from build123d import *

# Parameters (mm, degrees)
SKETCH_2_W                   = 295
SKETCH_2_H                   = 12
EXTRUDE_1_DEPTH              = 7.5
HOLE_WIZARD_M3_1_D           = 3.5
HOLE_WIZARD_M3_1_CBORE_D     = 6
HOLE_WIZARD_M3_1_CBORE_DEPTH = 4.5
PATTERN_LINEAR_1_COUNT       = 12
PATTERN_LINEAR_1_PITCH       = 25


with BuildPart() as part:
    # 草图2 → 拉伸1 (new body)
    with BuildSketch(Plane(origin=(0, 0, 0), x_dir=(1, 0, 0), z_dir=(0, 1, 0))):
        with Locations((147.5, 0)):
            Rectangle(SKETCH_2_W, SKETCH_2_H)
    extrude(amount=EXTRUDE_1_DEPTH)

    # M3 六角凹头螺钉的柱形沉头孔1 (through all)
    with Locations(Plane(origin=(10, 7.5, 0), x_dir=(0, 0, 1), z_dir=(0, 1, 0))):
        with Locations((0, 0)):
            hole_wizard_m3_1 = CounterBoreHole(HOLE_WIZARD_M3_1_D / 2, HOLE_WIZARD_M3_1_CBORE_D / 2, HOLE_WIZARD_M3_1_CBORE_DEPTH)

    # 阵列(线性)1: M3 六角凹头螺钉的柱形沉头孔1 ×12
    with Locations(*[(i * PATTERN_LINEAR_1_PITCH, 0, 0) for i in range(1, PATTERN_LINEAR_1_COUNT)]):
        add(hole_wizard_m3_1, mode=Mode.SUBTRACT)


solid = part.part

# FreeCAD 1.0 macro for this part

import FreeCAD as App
import Part
import Sketcher

V = App.Vector

doc = App.newDocument("Part")
body = doc.addObject("PartDesign::Body", "Body")

# Sketch on XZ plane
sketch1 = doc.addObject("Sketcher::SketchObject", "Sketch")
body.addObject(sketch1)
sketch1.AttachmentSupport = (doc.XZ_Plane, [""])
sketch1.MapMode = "FlatFace"
sketch1.addGeometry(Part.LineSegment(V(0, -6, 0), V(0, 6, 0)), False)
sketch1.addGeometry(Part.LineSegment(V(0, 6, 0), V(295, 6, 0)), False)
sketch1.addGeometry(Part.LineSegment(V(295, 6, 0), V(295, -6, 0)), False)
sketch1.addGeometry(Part.LineSegment(V(295, -6, 0), V(0, -6, 0)), False)
sketch1.addConstraint(Sketcher.Constraint("Coincident", 0, 2, 1, 1))
sketch1.addConstraint(Sketcher.Constraint("Coincident", 1, 2, 2, 1))
sketch1.addConstraint(Sketcher.Constraint("Coincident", 2, 2, 3, 1))
sketch1.addConstraint(Sketcher.Constraint("Coincident", 3, 2, 0, 1))
sketch1.addConstraint(Sketcher.Constraint("Vertical", 0))
sketch1.addConstraint(Sketcher.Constraint("Horizontal", 1))
sketch1.addConstraint(Sketcher.Constraint("Vertical", 2))
sketch1.addConstraint(Sketcher.Constraint("Horizontal", 3))
sketch1.addConstraint(Sketcher.Constraint("Symmetric", 0, 2, 3, 2, -1, 1))
sketch1.addConstraint(Sketcher.Constraint("DistanceX", 1, 1, 1, 2, 295.0))
sketch1.addConstraint(Sketcher.Constraint("DistanceY", 0, 1, 0, 2, 12.0))
pad1 = doc.addObject("PartDesign::Pad", "Pad")
body.addObject(pad1)
pad1.Profile = sketch1
pad1.Length = 7.5
pad1.Reversed = True

# Sketch on XZ plane
sketch2 = doc.addObject("Sketcher::SketchObject", "Sketch001")
body.addObject(sketch2)
sketch2.AttachmentSupport = (doc.XZ_Plane, [""])
sketch2.MapMode = "FlatFace"
sketch2.AttachmentOffset = App.Placement(V(0, 0, -7.5), App.Rotation())
sketch2.addGeometry(Part.Circle(V(10, 0, 0), V(0, 0, 1), 1.8), False)
sketch2.addConstraint(Sketcher.Constraint("PointOnObject", 0, 3, -1))
sketch2.addConstraint(Sketcher.Constraint("Diameter", 0, 3.5))
sketch2.addConstraint(Sketcher.Constraint("DistanceX", -1, 1, 0, 3, 10.0))
doc.recompute()
hole = doc.addObject("PartDesign::Hole", "Hole")
body.addObject(hole)
hole.Profile = sketch2
hole.ThreadType = "None"
hole.Diameter = 3.5
hole.DepthType = "ThroughAll"
hole.HoleCutType = "Counterbore"
hole.HoleCutDiameter = 6
hole.HoleCutDepth = 4.5
hole.Reversed = True
doc.recompute()

linearpattern = doc.addObject("PartDesign::LinearPattern", "LinearPattern")
body.addObject(linearpattern)
linearpattern.Originals = [hole]
linearpattern.Direction = (doc.X_Axis, [""])
linearpattern.Mode = "offset"
linearpattern.Offset = 25
linearpattern.Occurrences = 12
body.Tip = linearpattern

doc.recompute()
